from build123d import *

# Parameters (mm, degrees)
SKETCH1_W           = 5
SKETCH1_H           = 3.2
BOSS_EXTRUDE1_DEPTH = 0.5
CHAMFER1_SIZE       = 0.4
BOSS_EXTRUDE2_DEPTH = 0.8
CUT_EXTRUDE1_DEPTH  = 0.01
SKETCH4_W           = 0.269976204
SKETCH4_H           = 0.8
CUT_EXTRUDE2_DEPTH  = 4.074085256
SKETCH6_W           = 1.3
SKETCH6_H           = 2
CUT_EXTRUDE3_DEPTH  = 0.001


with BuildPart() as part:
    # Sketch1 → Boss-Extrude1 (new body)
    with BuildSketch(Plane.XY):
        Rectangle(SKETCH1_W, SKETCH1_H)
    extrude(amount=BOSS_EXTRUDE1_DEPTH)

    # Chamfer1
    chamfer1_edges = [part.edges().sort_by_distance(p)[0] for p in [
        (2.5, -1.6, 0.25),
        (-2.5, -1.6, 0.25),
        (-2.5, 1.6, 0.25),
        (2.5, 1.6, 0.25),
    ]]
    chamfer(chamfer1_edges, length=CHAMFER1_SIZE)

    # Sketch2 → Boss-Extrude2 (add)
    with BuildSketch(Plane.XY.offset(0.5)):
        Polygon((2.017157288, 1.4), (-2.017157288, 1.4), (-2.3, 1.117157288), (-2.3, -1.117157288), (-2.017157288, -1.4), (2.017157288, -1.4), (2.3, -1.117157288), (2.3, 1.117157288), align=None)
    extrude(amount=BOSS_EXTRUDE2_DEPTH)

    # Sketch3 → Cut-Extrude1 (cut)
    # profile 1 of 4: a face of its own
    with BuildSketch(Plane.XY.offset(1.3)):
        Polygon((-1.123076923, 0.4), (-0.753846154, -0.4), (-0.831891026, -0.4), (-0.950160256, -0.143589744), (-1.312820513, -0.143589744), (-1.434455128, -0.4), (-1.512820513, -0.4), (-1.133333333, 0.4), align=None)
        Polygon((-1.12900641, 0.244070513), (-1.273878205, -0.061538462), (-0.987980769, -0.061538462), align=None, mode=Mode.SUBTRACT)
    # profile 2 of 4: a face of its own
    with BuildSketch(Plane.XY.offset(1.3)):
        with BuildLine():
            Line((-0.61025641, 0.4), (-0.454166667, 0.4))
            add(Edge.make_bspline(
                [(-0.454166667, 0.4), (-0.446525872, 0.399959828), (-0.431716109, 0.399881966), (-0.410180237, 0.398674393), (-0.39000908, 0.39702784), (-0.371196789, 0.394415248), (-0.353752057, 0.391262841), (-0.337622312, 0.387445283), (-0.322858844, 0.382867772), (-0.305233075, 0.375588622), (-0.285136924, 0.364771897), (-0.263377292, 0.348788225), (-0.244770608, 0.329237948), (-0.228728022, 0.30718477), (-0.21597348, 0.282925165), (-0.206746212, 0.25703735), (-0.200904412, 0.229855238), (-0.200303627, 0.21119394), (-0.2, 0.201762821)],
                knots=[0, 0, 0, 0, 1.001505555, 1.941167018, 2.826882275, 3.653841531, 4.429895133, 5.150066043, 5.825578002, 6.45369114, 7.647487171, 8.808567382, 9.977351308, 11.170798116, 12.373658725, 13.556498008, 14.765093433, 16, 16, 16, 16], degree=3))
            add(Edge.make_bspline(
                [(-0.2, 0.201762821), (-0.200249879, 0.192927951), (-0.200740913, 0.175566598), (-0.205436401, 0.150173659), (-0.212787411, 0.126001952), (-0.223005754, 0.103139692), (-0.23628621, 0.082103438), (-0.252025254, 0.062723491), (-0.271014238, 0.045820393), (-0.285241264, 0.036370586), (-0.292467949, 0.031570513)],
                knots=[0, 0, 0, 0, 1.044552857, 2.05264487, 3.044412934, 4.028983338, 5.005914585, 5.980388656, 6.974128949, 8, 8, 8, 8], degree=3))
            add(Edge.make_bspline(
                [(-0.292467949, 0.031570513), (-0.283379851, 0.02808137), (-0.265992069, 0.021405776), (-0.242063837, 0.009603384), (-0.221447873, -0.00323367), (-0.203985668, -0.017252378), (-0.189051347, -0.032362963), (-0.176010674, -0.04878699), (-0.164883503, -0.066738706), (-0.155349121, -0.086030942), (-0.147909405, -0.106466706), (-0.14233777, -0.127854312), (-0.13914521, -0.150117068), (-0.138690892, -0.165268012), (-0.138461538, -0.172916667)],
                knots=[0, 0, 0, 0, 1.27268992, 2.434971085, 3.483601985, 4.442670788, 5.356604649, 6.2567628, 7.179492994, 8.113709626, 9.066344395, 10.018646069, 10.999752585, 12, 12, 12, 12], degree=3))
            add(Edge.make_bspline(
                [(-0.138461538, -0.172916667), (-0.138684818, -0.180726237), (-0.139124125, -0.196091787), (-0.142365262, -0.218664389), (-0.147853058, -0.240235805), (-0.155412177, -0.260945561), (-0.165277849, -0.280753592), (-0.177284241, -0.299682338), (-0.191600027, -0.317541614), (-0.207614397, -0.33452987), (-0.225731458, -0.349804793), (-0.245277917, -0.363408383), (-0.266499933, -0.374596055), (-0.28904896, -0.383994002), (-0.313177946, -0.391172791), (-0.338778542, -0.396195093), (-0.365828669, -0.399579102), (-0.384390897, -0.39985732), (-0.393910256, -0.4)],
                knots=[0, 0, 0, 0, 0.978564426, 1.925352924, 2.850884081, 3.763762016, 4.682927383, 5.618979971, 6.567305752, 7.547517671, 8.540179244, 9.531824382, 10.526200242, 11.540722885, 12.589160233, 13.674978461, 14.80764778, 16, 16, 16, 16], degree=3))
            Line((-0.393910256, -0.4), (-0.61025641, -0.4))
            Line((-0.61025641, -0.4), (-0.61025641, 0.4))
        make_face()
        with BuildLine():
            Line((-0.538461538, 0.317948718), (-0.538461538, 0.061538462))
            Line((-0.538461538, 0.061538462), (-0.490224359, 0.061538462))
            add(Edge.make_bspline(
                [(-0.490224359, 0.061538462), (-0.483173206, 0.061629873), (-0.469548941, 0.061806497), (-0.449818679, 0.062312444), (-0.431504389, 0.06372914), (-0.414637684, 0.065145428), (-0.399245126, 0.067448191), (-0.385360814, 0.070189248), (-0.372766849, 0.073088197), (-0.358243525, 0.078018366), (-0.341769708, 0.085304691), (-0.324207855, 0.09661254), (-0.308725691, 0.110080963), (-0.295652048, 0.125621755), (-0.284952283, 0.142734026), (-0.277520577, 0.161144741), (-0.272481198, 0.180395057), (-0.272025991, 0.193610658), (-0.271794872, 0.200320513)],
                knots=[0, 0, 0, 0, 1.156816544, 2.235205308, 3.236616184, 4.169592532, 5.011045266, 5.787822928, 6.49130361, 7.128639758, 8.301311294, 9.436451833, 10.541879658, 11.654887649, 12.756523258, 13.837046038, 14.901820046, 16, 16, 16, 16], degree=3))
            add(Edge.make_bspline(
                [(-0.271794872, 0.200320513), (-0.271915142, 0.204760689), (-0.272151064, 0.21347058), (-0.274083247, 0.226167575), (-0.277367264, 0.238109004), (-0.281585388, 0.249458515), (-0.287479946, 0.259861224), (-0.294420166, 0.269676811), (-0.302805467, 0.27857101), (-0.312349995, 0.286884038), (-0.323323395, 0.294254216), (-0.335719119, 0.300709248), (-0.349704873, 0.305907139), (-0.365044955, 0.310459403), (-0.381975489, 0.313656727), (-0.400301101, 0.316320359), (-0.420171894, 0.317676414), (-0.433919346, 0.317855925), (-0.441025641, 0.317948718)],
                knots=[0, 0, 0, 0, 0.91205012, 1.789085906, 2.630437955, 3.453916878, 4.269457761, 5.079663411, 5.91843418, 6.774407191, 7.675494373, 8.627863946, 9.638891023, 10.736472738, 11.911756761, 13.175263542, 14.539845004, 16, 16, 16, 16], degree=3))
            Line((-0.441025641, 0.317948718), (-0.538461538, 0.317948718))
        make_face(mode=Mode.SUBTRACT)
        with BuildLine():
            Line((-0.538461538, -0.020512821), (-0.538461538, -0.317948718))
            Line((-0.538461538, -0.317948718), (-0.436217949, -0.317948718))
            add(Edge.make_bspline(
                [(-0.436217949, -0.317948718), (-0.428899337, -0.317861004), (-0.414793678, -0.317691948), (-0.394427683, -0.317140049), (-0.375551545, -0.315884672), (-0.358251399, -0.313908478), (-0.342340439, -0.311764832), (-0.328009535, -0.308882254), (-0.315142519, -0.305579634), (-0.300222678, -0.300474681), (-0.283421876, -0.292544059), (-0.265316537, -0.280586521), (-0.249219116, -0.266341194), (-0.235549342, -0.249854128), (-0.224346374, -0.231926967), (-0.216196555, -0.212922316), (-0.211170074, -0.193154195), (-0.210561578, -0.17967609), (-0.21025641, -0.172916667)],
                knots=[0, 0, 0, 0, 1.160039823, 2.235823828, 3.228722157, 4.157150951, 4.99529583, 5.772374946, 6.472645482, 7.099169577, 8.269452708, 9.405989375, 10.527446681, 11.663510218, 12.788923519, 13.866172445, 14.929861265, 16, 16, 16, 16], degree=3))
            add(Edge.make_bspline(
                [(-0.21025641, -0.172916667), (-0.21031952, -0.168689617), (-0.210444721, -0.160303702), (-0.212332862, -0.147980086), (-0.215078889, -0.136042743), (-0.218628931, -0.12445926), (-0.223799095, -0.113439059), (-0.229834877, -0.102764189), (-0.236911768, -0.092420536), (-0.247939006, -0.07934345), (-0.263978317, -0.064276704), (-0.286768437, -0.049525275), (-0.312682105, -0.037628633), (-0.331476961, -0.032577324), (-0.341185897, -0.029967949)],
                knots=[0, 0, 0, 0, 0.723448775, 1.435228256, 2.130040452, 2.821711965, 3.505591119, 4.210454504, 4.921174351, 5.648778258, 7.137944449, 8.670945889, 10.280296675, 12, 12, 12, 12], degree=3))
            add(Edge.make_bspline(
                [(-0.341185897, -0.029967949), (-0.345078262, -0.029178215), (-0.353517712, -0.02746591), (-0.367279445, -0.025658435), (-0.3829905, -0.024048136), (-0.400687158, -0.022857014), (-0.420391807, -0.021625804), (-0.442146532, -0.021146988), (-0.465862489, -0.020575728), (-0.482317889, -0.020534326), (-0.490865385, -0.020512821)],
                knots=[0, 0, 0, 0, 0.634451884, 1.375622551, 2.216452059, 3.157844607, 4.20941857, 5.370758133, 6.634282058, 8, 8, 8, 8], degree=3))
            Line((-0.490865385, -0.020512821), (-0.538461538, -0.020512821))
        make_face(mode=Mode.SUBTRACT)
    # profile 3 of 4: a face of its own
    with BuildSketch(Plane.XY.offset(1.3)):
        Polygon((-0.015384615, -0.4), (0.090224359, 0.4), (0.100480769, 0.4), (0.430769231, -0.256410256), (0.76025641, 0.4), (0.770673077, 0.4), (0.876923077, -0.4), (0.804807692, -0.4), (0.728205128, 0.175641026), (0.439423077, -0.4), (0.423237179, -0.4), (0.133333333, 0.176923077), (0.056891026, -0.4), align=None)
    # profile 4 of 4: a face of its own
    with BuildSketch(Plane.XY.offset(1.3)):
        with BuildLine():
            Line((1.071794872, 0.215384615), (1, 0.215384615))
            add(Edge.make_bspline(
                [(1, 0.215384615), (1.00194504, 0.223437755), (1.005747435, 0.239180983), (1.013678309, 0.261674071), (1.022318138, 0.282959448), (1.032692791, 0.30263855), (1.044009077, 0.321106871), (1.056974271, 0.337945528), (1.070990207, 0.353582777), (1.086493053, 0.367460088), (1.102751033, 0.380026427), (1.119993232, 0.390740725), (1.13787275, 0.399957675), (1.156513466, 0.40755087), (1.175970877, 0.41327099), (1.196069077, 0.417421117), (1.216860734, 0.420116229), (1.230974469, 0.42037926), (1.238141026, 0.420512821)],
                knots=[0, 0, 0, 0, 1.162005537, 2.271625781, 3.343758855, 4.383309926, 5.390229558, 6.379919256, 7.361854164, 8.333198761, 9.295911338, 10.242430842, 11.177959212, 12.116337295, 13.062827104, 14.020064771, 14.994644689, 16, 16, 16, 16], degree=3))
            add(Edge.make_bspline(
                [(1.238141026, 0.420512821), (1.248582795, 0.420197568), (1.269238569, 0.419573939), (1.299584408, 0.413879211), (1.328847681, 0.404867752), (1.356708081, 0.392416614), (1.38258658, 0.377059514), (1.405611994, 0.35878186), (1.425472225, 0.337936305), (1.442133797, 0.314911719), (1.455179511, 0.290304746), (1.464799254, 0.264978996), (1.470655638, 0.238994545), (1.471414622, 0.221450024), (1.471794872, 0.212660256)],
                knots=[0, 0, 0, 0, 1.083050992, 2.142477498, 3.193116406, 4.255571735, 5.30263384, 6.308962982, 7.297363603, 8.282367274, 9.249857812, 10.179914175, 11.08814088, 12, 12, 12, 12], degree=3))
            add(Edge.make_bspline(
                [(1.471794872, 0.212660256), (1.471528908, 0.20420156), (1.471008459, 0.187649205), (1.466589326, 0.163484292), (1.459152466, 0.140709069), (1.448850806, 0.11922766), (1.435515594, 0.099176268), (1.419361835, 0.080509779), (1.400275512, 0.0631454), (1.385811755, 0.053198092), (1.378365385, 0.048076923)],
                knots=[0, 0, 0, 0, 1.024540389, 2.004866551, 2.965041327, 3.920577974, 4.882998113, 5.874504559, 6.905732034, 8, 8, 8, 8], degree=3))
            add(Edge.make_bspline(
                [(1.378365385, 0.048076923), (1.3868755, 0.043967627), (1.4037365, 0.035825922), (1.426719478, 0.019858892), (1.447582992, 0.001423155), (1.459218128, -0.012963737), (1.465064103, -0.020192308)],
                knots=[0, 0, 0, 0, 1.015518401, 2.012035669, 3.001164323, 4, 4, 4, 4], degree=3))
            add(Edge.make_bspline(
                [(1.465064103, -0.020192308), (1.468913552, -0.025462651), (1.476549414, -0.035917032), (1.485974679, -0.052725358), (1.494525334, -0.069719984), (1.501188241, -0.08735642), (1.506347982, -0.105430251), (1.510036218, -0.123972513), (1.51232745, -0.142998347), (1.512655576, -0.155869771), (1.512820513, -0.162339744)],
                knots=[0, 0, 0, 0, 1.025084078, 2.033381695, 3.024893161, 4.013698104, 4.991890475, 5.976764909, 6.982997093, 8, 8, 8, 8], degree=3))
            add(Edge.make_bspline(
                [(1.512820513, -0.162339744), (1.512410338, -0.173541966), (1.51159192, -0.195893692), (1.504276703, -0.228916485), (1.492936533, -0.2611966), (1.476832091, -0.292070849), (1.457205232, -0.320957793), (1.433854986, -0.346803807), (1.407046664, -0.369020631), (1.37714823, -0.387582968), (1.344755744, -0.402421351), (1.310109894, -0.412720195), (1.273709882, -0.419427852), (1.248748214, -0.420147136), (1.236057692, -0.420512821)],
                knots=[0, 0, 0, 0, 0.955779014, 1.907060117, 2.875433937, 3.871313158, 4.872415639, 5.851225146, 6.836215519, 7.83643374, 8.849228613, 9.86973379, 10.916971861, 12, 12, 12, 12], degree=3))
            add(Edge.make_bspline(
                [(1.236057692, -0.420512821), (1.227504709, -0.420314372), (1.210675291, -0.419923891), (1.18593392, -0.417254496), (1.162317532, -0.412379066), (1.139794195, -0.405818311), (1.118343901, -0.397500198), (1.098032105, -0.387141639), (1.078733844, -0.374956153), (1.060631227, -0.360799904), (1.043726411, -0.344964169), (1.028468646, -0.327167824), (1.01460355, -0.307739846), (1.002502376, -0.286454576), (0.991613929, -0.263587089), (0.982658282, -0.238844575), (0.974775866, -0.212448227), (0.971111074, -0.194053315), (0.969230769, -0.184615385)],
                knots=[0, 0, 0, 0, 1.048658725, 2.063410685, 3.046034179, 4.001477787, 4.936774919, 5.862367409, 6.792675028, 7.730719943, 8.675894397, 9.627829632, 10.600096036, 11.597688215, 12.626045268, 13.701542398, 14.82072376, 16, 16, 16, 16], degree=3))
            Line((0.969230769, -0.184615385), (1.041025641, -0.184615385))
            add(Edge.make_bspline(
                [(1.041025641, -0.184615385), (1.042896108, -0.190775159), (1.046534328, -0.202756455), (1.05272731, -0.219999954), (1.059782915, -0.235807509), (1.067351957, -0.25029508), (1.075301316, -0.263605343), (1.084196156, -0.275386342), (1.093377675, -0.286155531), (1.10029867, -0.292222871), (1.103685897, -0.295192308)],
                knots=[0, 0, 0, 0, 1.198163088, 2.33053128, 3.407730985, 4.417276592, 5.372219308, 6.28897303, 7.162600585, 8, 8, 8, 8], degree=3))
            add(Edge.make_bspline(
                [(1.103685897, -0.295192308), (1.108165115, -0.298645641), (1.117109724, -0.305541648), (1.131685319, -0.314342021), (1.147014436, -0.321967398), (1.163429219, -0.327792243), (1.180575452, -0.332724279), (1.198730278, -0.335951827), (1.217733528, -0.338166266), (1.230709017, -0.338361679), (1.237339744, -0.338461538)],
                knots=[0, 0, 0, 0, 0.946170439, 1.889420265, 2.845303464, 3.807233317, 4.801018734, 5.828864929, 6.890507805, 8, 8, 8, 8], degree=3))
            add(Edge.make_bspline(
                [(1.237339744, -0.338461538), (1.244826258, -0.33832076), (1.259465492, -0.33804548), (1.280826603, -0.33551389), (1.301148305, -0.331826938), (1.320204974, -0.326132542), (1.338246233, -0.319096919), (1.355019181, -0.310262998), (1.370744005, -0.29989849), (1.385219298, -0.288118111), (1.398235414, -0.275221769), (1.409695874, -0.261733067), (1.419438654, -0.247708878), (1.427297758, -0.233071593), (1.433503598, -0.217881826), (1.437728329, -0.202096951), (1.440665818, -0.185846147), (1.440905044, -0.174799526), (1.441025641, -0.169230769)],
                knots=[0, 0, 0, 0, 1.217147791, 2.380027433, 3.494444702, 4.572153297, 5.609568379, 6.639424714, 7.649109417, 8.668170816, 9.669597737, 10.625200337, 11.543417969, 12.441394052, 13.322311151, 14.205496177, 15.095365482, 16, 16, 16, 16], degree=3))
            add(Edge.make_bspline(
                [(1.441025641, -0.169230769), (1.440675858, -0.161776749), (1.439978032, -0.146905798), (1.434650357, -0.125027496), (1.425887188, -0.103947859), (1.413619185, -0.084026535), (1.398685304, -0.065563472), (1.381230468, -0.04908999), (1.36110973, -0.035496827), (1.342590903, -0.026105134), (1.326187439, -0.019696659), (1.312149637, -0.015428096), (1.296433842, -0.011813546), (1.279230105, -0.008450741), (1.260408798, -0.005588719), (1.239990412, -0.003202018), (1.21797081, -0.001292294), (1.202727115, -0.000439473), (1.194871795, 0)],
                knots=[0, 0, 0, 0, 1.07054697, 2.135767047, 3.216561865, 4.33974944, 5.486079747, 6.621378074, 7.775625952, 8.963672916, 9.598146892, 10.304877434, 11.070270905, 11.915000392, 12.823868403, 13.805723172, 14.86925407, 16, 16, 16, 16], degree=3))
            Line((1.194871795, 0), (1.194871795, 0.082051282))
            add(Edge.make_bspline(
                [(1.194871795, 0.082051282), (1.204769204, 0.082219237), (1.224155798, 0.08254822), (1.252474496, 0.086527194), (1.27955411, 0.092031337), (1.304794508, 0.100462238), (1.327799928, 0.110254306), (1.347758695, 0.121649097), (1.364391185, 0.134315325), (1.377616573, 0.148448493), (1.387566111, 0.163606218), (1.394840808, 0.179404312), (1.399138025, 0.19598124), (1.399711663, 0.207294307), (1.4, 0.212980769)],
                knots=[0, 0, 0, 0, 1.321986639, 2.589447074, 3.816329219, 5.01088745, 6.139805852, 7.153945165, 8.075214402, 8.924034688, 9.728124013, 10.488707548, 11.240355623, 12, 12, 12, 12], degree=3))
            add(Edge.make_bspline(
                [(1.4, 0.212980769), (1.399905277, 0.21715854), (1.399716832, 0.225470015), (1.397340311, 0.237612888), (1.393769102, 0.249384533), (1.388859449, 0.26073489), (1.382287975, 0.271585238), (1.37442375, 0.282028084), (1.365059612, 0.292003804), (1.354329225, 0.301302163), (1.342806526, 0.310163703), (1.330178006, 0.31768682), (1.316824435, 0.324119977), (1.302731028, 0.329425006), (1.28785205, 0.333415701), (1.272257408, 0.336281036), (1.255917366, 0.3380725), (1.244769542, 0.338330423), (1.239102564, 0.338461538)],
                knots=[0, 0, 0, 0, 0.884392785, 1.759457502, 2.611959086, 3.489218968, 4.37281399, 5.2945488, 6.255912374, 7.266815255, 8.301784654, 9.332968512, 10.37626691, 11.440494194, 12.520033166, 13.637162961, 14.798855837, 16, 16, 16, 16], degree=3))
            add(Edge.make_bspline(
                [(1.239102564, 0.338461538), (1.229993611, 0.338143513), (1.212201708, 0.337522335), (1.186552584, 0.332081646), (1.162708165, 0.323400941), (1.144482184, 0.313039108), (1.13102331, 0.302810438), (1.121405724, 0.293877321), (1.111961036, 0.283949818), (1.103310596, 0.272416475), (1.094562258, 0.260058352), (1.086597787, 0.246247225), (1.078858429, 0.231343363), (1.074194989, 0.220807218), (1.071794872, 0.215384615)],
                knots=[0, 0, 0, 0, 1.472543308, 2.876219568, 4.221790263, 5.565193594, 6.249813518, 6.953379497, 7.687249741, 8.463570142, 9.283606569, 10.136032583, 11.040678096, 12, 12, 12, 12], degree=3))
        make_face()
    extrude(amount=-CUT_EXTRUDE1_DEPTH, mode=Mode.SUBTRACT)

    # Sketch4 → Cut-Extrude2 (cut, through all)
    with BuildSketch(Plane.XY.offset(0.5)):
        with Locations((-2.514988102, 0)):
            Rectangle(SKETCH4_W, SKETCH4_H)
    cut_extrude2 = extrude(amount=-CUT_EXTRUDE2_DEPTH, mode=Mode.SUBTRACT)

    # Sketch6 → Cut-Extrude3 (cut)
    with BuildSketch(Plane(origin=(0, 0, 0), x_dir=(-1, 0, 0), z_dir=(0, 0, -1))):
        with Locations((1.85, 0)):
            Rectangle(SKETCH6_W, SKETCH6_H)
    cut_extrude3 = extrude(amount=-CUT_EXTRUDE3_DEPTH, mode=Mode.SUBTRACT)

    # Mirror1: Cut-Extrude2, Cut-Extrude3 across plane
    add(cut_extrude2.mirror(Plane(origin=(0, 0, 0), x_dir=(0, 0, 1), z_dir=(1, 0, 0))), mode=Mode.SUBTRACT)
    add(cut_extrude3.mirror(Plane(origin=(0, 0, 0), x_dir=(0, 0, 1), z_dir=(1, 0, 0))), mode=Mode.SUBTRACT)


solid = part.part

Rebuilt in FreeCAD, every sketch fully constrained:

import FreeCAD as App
import Part
import Sketcher

V = App.Vector
Q = App.Units.Quantity


def edges_at(feature, points):
    """Names of the edges that pass closest to the given points."""
    edges = feature.Shape.Edges
    near = lambda p: min(range(len(edges)), key=lambda i: edges[i].distToShape(Part.Vertex(*p))[0])
    return sorted({f"Edge{near(p) + 1}" for p in points})

doc = App.newDocument("Part")
body = doc.addObject("PartDesign::Body", "Body")

# Sketch on XY plane
sketch1 = body.newObject("Sketcher::SketchObject", "Sketch")
sketch1.AttachmentSupport = (doc.getObject("XY_Plane"), [""])
sketch1.MapMode = "FlatFace"
sketch1.addGeometry([
    Part.LineSegment(V(-2.5, 1.6, 0), V(-2.5, -1.6, 0)),
    Part.LineSegment(V(-2.5, -1.6, 0), V(2.5, -1.6, 0)),
    Part.LineSegment(V(2.5, -1.6, 0), V(2.5, 1.6, 0)),
    Part.LineSegment(V(2.5, 1.6, 0), V(-2.5, 1.6, 0)),
], False)
sketch1.addConstraint([
    Sketcher.Constraint("Coincident", 0, 2, 1, 1),
    Sketcher.Constraint("Coincident", 1, 2, 2, 1),
    Sketcher.Constraint("Coincident", 2, 2, 3, 1),
    Sketcher.Constraint("Coincident", 3, 2, 0, 1),
    Sketcher.Constraint("Vertical", 0),
    Sketcher.Constraint("Horizontal", 1),
    Sketcher.Constraint("Vertical", 2),
    Sketcher.Constraint("Horizontal", 3),
    Sketcher.Constraint("Symmetric", 0, 2, 2, 2, -1, 1),
    Sketcher.Constraint("DistanceX", 1, 1, 1, 2, Q("5 mm")),
    Sketcher.Constraint("DistanceY", 0, 2, 0, 1, Q("3.2 mm")),
])
pad1 = body.newObject("PartDesign::Pad", "Pad")
pad1.Profile = sketch1
pad1.Length = 0.5
doc.recompute()

chamfer = body.newObject("PartDesign::Chamfer", "Chamfer")
chamfer.Base = (pad1, edges_at(pad1, [
    (2.5, -1.6, 0.25),
    (-2.5, -1.6, 0.25),
    (-2.5, 1.6, 0.25),
    (2.5, 1.6, 0.25),
]))
chamfer.Size = 0.4

# Sketch on XY plane
sketch2 = body.newObject("Sketcher::SketchObject", "Sketch001")
sketch2.AttachmentSupport = (doc.getObject("XY_Plane"), [""])
sketch2.MapMode = "FlatFace"
sketch2.AttachmentOffset = App.Placement(V(0, 0, 0.5), App.Rotation())
sketch2.addGeometry([
    Part.LineSegment(V(2.02, 1.4, 0), V(-2.02, 1.4, 0)),  # 0
    Part.LineSegment(V(-2.02, 1.4, 0), V(-2.3, 1.12, 0)),  # 1
    Part.LineSegment(V(-2.3, 1.12, 0), V(-2.3, -1.12, 0)),  # 2
    Part.LineSegment(V(-2.3, -1.12, 0), V(-2.02, -1.4, 0)),  # 3
    Part.LineSegment(V(-2.02, -1.4, 0), V(2.02, -1.4, 0)),  # 4
    Part.LineSegment(V(2.02, -1.4, 0), V(2.3, -1.12, 0)),  # 5
    Part.LineSegment(V(2.3, -1.12, 0), V(2.3, 1.12, 0)),  # 6
    Part.LineSegment(V(2.3, 1.12, 0), V(2.02, 1.4, 0)),  # 7
], False)
sketch2.addConstraint([
    Sketcher.Constraint("Coincident", 0, 2, 1, 1),
    Sketcher.Constraint("Coincident", 1, 2, 2, 1),
    Sketcher.Constraint("Coincident", 2, 2, 3, 1),
    Sketcher.Constraint("Coincident", 3, 2, 4, 1),
    Sketcher.Constraint("Coincident", 4, 2, 5, 1),
    Sketcher.Constraint("Coincident", 5, 2, 6, 1),
    Sketcher.Constraint("Coincident", 6, 2, 7, 1),
    Sketcher.Constraint("Coincident", 7, 2, 0, 1),
    Sketcher.Constraint("Horizontal", 0),
    Sketcher.Constraint("Vertical", 2),
    Sketcher.Constraint("Horizontal", 4),
    Sketcher.Constraint("Vertical", 6),
    Sketcher.Constraint("Symmetric", 0, 2, 4, 2, -1, 1),
    Sketcher.Constraint("Symmetric", 1, 2, 5, 2, -1, 1),
    Sketcher.Constraint("Perpendicular", 1, 3),
    Sketcher.Constraint("Perpendicular", 5, 7),
    Sketcher.Constraint("Horizontal", 2, 2, 5, 2),
    Sketcher.Constraint("Horizontal", 1, 2, 6, 2),
    Sketcher.Constraint("Vertical", 0, 2, 3, 2),
    Sketcher.Constraint("Distance", 1, Q("0.4 mm")),
    Sketcher.Constraint("DistanceY", -1, 1, 0, 2, Q("1.4 mm")),
    Sketcher.Constraint("DistanceX", 1, 2, -1, 1, Q("2.3 mm")),
])
pad2 = body.newObject("PartDesign::Pad", "Pad001")
pad2.Profile = sketch2
pad2.Length = 0.8

# Sketch on XY plane
sketch3 = body.newObject("Sketcher::SketchObject", "Sketch002")
sketch3.AttachmentSupport = (doc.getObject("XY_Plane"), [""])
sketch3.MapMode = "FlatFace"
sketch3.AttachmentOffset = App.Placement(V(0, 0, 1.3), App.Rotation())
sketch3.addGeometry([
    Part.LineSegment(V(-0.753846, -0.4, 0), V(-1.123077, 0.4, 0)),  # 0
    Part.LineSegment(V(-1.123077, 0.4, 0), V(-1.133333, 0.4, 0)),  # 1
    Part.LineSegment(V(-1.133333, 0.4, 0), V(-1.512821, -0.4, 0)),  # 2
    Part.LineSegment(V(-1.512821, -0.4, 0), V(-1.434455, -0.4, 0)),  # 3
    Part.LineSegment(V(-1.434455, -0.4, 0), V(-1.312821, -0.14359, 0)),  # 4
    Part.LineSegment(V(-1.312821, -0.14359, 0), V(-0.95016, -0.14359, 0)),  # 5
    Part.LineSegment(V(-0.95016, -0.14359, 0), V(-0.831891, -0.4, 0)),  # 6
    Part.LineSegment(V(-0.831891, -0.4, 0), V(-0.753846, -0.4, 0)),  # 7
    Part.LineSegment(V(-1.129006, 0.244071, 0), V(-0.987981, -0.061538, 0)),  # 8
    Part.LineSegment(V(-0.987981, -0.061538, 0), V(-1.273878, -0.061538, 0)),  # 9
    Part.LineSegment(V(-1.273878, -0.061538, 0), V(-1.129006, 0.244071, 0)),  # 10
    Part.LineSegment(V(-0.454167, 0.4, 0), V(-0.610256, 0.4, 0)),  # 11
    Part.LineSegment(V(-0.610256, 0.4, 0), V(-0.610256, -0.4, 0)),  # 12
    Part.LineSegment(V(-0.610256, -0.4, 0), V(-0.39391, -0.4, 0)),  # 13
    Part.BSplineCurve([V(-0.138462, -0.172917, 0), V(-0.138685, -0.180726, 0), V(-0.139124, -0.196092, 0), V(-0.142365, -0.218664, 0), V(-0.147853, -0.240236, 0), V(-0.155412, -0.260946, 0), V(-0.165278, -0.280754, 0), V(-0.177284, -0.299682, 0), V(-0.1916, -0.317542, 0), V(-0.207614, -0.33453, 0), V(-0.225731, -0.349805, 0), V(-0.245278, -0.363408, 0), V(-0.2665, -0.374596, 0), V(-0.289049, -0.383994, 0), V(-0.313178, -0.391173, 0), V(-0.338779, -0.396195, 0), V(-0.365829, -0.399579, 0), V(-0.384391, -0.399857, 0), V(-0.39391, -0.4, 0)], [4, 1, 1, 1, 1, 1, 1, 1, 1, 1, 1, 1, 1, 1, 1, 1, 4], [0, 0.978564426, 1.925352924, 2.850884081, 3.763762016, 4.682927383, 5.618979971, 6.567305752, 7.547517671, 8.540179244, 9.531824382, 10.526200242, 11.540722885, 12.589160233, 13.674978461, 14.80764778, 16], False, 3, [1, 1, 1, 1, 1, 1, 1, 1, 1, 1, 1, 1, 1, 1, 1, 1, 1, 1, 1], False),  # 14
    Part.BSplineCurve([V(-0.292468, 0.031571, 0), V(-0.28338, 0.028081, 0), V(-0.265992, 0.021406, 0), V(-0.242064, 0.009603, 0), V(-0.221448, -0.003234, 0), V(-0.203986, -0.017252, 0), V(-0.189051, -0.032363, 0), V(-0.176011, -0.048787, 0), V(-0.164884, -0.066739, 0), V(-0.155349, -0.086031, 0), V(-0.147909, -0.106467, 0), V(-0.142338, -0.127854, 0), V(-0.139145, -0.150117, 0), V(-0.138691, -0.165268, 0), V(-0.138462, -0.172917, 0)], [4, 1, 1, 1, 1, 1, 1, 1, 1, 1, 1, 1, 4], [0, 1.27268992, 2.434971085, 3.483601985, 4.442670788, 5.356604649, 6.2567628, 7.179492994, 8.113709626, 9.066344395, 10.018646069, 10.999752585, 12], False, 3, [1, 1, 1, 1, 1, 1, 1, 1, 1, 1, 1, 1, 1, 1, 1], False),  # 15
    Part.BSplineCurve([V(-0.2, 0.201763, 0), V(-0.20025, 0.192928, 0), V(-0.200741, 0.175567, 0), V(-0.205436, 0.150174, 0), V(-0.212787, 0.126002, 0), V(-0.223006, 0.10314, 0), V(-0.236286, 0.082103, 0), V(-0.252025, 0.062723, 0), V(-0.271014, 0.04582, 0), V(-0.285241, 0.036371, 0), V(-0.292468, 0.031571, 0)], [4, 1, 1, 1, 1, 1, 1, 1, 4], [0, 1.044552857, 2.05264487, 3.044412934, 4.028983338, 5.005914585, 5.980388656, 6.974128949, 8], False, 3, [1, 1, 1, 1, 1, 1, 1, 1, 1, 1, 1], False),  # 16
    Part.BSplineCurve([V(-0.454167, 0.4, 0), V(-0.446526, 0.39996, 0), V(-0.431716, 0.399882, 0), V(-0.41018, 0.398674, 0), V(-0.390009, 0.397028, 0), V(-0.371197, 0.394415, 0), V(-0.353752, 0.391263, 0), V(-0.337622, 0.387445, 0), V(-0.322859, 0.382868, 0), V(-0.305233, 0.375589, 0), V(-0.285137, 0.364772, 0), V(-0.263377, 0.348788, 0), V(-0.244771, 0.329238, 0), V(-0.228728, 0.307185, 0), V(-0.215973, 0.282925, 0), V(-0.206746, 0.257037, 0), V(-0.200904, 0.229855, 0), V(-0.200304, 0.211194, 0), V(-0.2, 0.201763, 0)], [4, 1, 1, 1, 1, 1, 1, 1, 1, 1, 1, 1, 1, 1, 1, 1, 4], [0, 1.001505555, 1.941167018, 2.826882275, 3.653841531, 4.429895133, 5.150066043, 5.825578002, 6.45369114, 7.647487171, 8.808567382, 9.977351308, 11.170798116, 12.373658725, 13.556498008, 14.765093433, 16], False, 3, [1, 1, 1, 1, 1, 1, 1, 1, 1, 1, 1, 1, 1, 1, 1, 1, 1, 1, 1], False),  # 17
    Part.LineSegment(V(-0.538462, -0.020513, 0), V(-0.490865, -0.020513, 0)),  # 18
    Part.BSplineCurve([V(-0.341186, -0.029968, 0), V(-0.345078, -0.029178, 0), V(-0.353518, -0.027466, 0), V(-0.367279, -0.025658, 0), V(-0.382991, -0.024048, 0), V(-0.400687, -0.022857, 0), V(-0.420392, -0.021626, 0), V(-0.442147, -0.021147, 0), V(-0.465862, -0.020576, 0), V(-0.482318, -0.020534, 0), V(-0.490865, -0.020513, 0)], [4, 1, 1, 1, 1, 1, 1, 1, 4], [0, 0.634451884, 1.375622551, 2.216452059, 3.157844607, 4.20941857, 5.370758133, 6.634282058, 8], False, 3, [1, 1, 1, 1, 1, 1, 1, 1, 1, 1, 1], False),  # 19
    Part.BSplineCurve([V(-0.210256, -0.172917, 0), V(-0.21032, -0.16869, 0), V(-0.210445, -0.160304, 0), V(-0.212333, -0.14798, 0), V(-0.215079, -0.136043, 0), V(-0.218629, -0.124459, 0), V(-0.223799, -0.113439, 0), V(-0.229835, -0.102764, 0), V(-0.236912, -0.092421, 0), V(-0.247939, -0.079343, 0), V(-0.263978, -0.064277, 0), V(-0.286768, -0.049525, 0), V(-0.312682, -0.037629, 0), V(-0.331477, -0.032577, 0), V(-0.341186, -0.029968, 0)], [4, 1, 1, 1, 1, 1, 1, 1, 1, 1, 1, 1, 4], [0, 0.723448775, 1.435228256, 2.130040452, 2.821711965, 3.505591119, 4.210454504, 4.921174351, 5.648778258, 7.137944449, 8.670945889, 10.280296675, 12], False, 3, [1, 1, 1, 1, 1, 1, 1, 1, 1, 1, 1, 1, 1, 1, 1], False),  # 20
    Part.BSplineCurve([V(-0.436218, -0.317949, 0), V(-0.428899, -0.317861, 0), V(-0.414794, -0.317692, 0), V(-0.394428, -0.31714, 0), V(-0.375552, -0.315885, 0), V(-0.358251, -0.313908, 0), V(-0.34234, -0.311765, 0), V(-0.32801, -0.308882, 0), V(-0.315143, -0.30558, 0), V(-0.300223, -0.300475, 0), V(-0.283422, -0.292544, 0), V(-0.265317, -0.280587, 0), V(-0.249219, -0.266341, 0), V(-0.235549, -0.249854, 0), V(-0.224346, -0.231927, 0), V(-0.216197, -0.212922, 0), V(-0.21117, -0.193154, 0), V(-0.210562, -0.179676, 0), V(-0.210256, -0.172917, 0)], [4, 1, 1, 1, 1, 1, 1, 1, 1, 1, 1, 1, 1, 1, 1, 1, 4], [0, 1.160039823, 2.235823828, 3.228722157, 4.157150951, 4.99529583, 5.772374946, 6.472645482, 7.099169577, 8.269452708, 9.405989375, 10.527446681, 11.663510218, 12.788923519, 13.866172445, 14.929861265, 16], False, 3, [1, 1, 1, 1, 1, 1, 1, 1, 1, 1, 1, 1, 1, 1, 1, 1, 1, 1, 1], False),  # 21
    Part.LineSegment(V(-0.436218, -0.317949, 0), V(-0.538462, -0.317949, 0)),  # 22
    Part.LineSegment(V(-0.538462, -0.317949, 0), V(-0.538462, -0.020513, 0)),  # 23
    Part.LineSegment(V(-0.538462, 0.317949, 0), V(-0.441026, 0.317949, 0)),  # 24
    Part.BSplineCurve([V(-0.271795, 0.200321, 0), V(-0.271915, 0.204761, 0), V(-0.272151, 0.213471, 0), V(-0.274083, 0.226168, 0), V(-0.277367, 0.238109, 0), V(-0.281585, 0.249459, 0), V(-0.28748, 0.259861, 0), V(-0.29442, 0.269677, 0), V(-0.302805, 0.278571, 0), V(-0.31235, 0.286884, 0), V(-0.323323, 0.294254, 0), V(-0.335719, 0.300709, 0), V(-0.349705, 0.305907, 0), V(-0.365045, 0.310459, 0), V(-0.381975, 0.313657, 0), V(-0.400301, 0.31632, 0), V(-0.420172, 0.317676, 0), V(-0.433919, 0.317856, 0), V(-0.441026, 0.317949, 0)], [4, 1, 1, 1, 1, 1, 1, 1, 1, 1, 1, 1, 1, 1, 1, 1, 4], [0, 0.91205012, 1.789085906, 2.630437955, 3.453916878, 4.269457761, 5.079663411, 5.91843418, 6.774407191, 7.675494373, 8.627863946, 9.638891023, 10.736472738, 11.911756761, 13.175263542, 14.539845004, 16], False, 3, [1, 1, 1, 1, 1, 1, 1, 1, 1, 1, 1, 1, 1, 1, 1, 1, 1, 1, 1], False),  # 25
    Part.BSplineCurve([V(-0.490224, 0.061538, 0), V(-0.483173, 0.06163, 0), V(-0.469549, 0.061806, 0), V(-0.449819, 0.062312, 0), V(-0.431504, 0.063729, 0), V(-0.414638, 0.065145, 0), V(-0.399245, 0.067448, 0), V(-0.385361, 0.070189, 0), V(-0.372767, 0.073088, 0), V(-0.358244, 0.078018, 0), V(-0.34177, 0.085305, 0), V(-0.324208, 0.096613, 0), V(-0.308726, 0.110081, 0), V(-0.295652, 0.125622, 0), V(-0.284952, 0.142734, 0), V(-0.277521, 0.161145, 0), V(-0.272481, 0.180395, 0), V(-0.272026, 0.193611, 0), V(-0.271795, 0.200321, 0)], [4, 1, 1, 1, 1, 1, 1, 1, 1, 1, 1, 1, 1, 1, 1, 1, 4], [0, 1.156816544, 2.235205308, 3.236616184, 4.169592532, 5.011045266, 5.787822928, 6.49130361, 7.128639758, 8.301311294, 9.436451833, 10.541879658, 11.654887649, 12.756523258, 13.837046038, 14.901820046, 16], False, 3, [1, 1, 1, 1, 1, 1, 1, 1, 1, 1, 1, 1, 1, 1, 1, 1, 1, 1, 1], False),  # 26
    Part.LineSegment(V(-0.490224, 0.061538, 0), V(-0.538462, 0.061538, 0)),  # 27
    Part.LineSegment(V(-0.538462, 0.061538, 0), V(-0.538462, 0.317949, 0)),  # 28
    Part.LineSegment(V(0.090224, 0.4, 0), V(-0.015385, -0.4, 0)),  # 29
    Part.LineSegment(V(-0.015385, -0.4, 0), V(0.056891, -0.4, 0)),  # 30
    Part.LineSegment(V(0.056891, -0.4, 0), V(0.133333, 0.176923, 0)),  # 31
    Part.LineSegment(V(0.133333, 0.176923, 0), V(0.423237, -0.4, 0)),  # 32
    Part.LineSegment(V(0.423237, -0.4, 0), V(0.439423, -0.4, 0)),  # 33
    Part.LineSegment(V(0.439423, -0.4, 0), V(0.728205, 0.175641, 0)),  # 34
    Part.LineSegment(V(0.728205, 0.175641, 0), V(0.804808, -0.4, 0)),  # 35
    Part.LineSegment(V(0.804808, -0.4, 0), V(0.876923, -0.4, 0)),  # 36
    Part.LineSegment(V(0.876923, -0.4, 0), V(0.770673, 0.4, 0)),  # 37
    Part.LineSegment(V(0.770673, 0.4, 0), V(0.760256, 0.4, 0)),  # 38
    Part.LineSegment(V(0.760256, 0.4, 0), V(0.430769, -0.25641, 0)),  # 39
    Part.LineSegment(V(0.430769, -0.25641, 0), V(0.100481, 0.4, 0)),  # 40
    Part.LineSegment(V(0.100481, 0.4, 0), V(0.090224, 0.4, 0)),  # 41
    Part.LineSegment(V(1, 0.215385, 0), V(1.071795, 0.215385, 0)),  # 42
    Part.BSplineCurve([V(1.239103, 0.338462, 0), V(1.229994, 0.338144, 0), V(1.212202, 0.337522, 0), V(1.186553, 0.332082, 0), V(1.162708, 0.323401, 0), V(1.144482, 0.313039, 0), V(1.131023, 0.30281, 0), V(1.121406, 0.293877, 0), V(1.111961, 0.28395, 0), V(1.103311, 0.272416, 0), V(1.094562, 0.260058, 0), V(1.086598, 0.246247, 0), V(1.078858, 0.231343, 0), V(1.074195, 0.220807, 0), V(1.071795, 0.215385, 0)], [4, 1, 1, 1, 1, 1, 1, 1, 1, 1, 1, 1, 4], [0, 1.472543308, 2.876219568, 4.221790263, 5.565193594, 6.249813518, 6.953379497, 7.687249741, 8.463570142, 9.283606569, 10.136032583, 11.040678096, 12], False, 3, [1, 1, 1, 1, 1, 1, 1, 1, 1, 1, 1, 1, 1, 1, 1], False),  # 43
    Part.BSplineCurve([V(1.4, 0.212981, 0), V(1.399905, 0.217159, 0), V(1.399717, 0.22547, 0), V(1.39734, 0.237613, 0), V(1.393769, 0.249385, 0), V(1.388859, 0.260735, 0), V(1.382288, 0.271585, 0), V(1.374424, 0.282028, 0), V(1.36506, 0.292004, 0), V(1.354329, 0.301302, 0), V(1.342807, 0.310164, 0), V(1.330178, 0.317687, 0), V(1.316824, 0.32412, 0), V(1.302731, 0.329425, 0), V(1.287852, 0.333416, 0), V(1.272257, 0.336281, 0), V(1.255917, 0.338072, 0), V(1.24477, 0.33833, 0), V(1.239103, 0.338462, 0)], [4, 1, 1, 1, 1, 1, 1, 1, 1, 1, 1, 1, 1, 1, 1, 1, 4], [0, 0.884392785, 1.759457502, 2.611959086, 3.489218968, 4.37281399, 5.2945488, 6.255912374, 7.266815255, 8.301784654, 9.332968512, 10.37626691, 11.440494194, 12.520033166, 13.637162961, 14.798855837, 16], False, 3, [1, 1, 1, 1, 1, 1, 1, 1, 1, 1, 1, 1, 1, 1, 1, 1, 1, 1, 1], False),  # 44
    Part.BSplineCurve([V(1.194872, 0.082051, 0), V(1.204769, 0.082219, 0), V(1.224156, 0.082548, 0), V(1.252474, 0.086527, 0), V(1.279554, 0.092031, 0), V(1.304795, 0.100462, 0), V(1.3278, 0.110254, 0), V(1.347759, 0.121649, 0), V(1.364391, 0.134315, 0), V(1.377617, 0.148448, 0), V(1.387566, 0.163606, 0), V(1.394841, 0.179404, 0), V(1.399138, 0.195981, 0), V(1.399712, 0.207294, 0), V(1.4, 0.212981, 0)], [4, 1, 1, 1, 1, 1, 1, 1, 1, 1, 1, 1, 4], [0, 1.321986639, 2.589447074, 3.816329219, 5.01088745, 6.139805852, 7.153945165, 8.075214402, 8.924034688, 9.728124013, 10.488707548, 11.240355623, 12], False, 3, [1, 1, 1, 1, 1, 1, 1, 1, 1, 1, 1, 1, 1, 1, 1], False),  # 45
    Part.LineSegment(V(1.194872, 0.082051, 0), V(1.194872, 0, 0)),  # 46
    Part.BSplineCurve([V(1.441026, -0.169231, 0), V(1.440676, -0.161777, 0), V(1.439978, -0.146906, 0), V(1.43465, -0.125027, 0), V(1.425887, -0.103948, 0), V(1.413619, -0.084027, 0), V(1.398685, -0.065563, 0), V(1.38123, -0.04909, 0), V(1.36111, -0.035497, 0), V(1.342591, -0.026105, 0), V(1.326187, -0.019697, 0), V(1.31215, -0.015428, 0), V(1.296434, -0.011814, 0), V(1.27923, -0.008451, 0), V(1.260409, -0.005589, 0), V(1.23999, -0.003202, 0), V(1.217971, -0.001292, 0), V(1.202727, -0.000439, 0), V(1.194872, 0, 0)], [4, 1, 1, 1, 1, 1, 1, 1, 1, 1, 1, 1, 1, 1, 1, 1, 4], [0, 1.07054697, 2.135767047, 3.216561865, 4.33974944, 5.486079747, 6.621378074, 7.775625952, 8.963672916, 9.598146892, 10.304877434, 11.070270905, 11.915000392, 12.823868403, 13.805723172, 14.86925407, 16], False, 3, [1, 1, 1, 1, 1, 1, 1, 1, 1, 1, 1, 1, 1, 1, 1, 1, 1, 1, 1], False),  # 47
    Part.BSplineCurve([V(1.23734, -0.338462, 0), V(1.244826, -0.338321, 0), V(1.259465, -0.338045, 0), V(1.280827, -0.335514, 0), V(1.301148, -0.331827, 0), V(1.320205, -0.326133, 0), V(1.338246, -0.319097, 0), V(1.355019, -0.310263, 0), V(1.370744, -0.299898, 0), V(1.385219, -0.288118, 0), V(1.398235, -0.275222, 0), V(1.409696, -0.261733, 0), V(1.419439, -0.247709, 0), V(1.427298, -0.233072, 0), V(1.433504, -0.217882, 0), V(1.437728, -0.202097, 0), V(1.440666, -0.185846, 0), V(1.440905, -0.1748, 0), V(1.441026, -0.169231, 0)], [4, 1, 1, 1, 1, 1, 1, 1, 1, 1, 1, 1, 1, 1, 1, 1, 4], [0, 1.217147791, 2.380027433, 3.494444702, 4.572153297, 5.609568379, 6.639424714, 7.649109417, 8.668170816, 9.669597737, 10.625200337, 11.543417969, 12.441394052, 13.322311151, 14.205496177, 15.095365482, 16], False, 3, [1, 1, 1, 1, 1, 1, 1, 1, 1, 1, 1, 1, 1, 1, 1, 1, 1, 1, 1], False),  # 48
    Part.BSplineCurve([V(1.103686, -0.295192, 0), V(1.108165, -0.298646, 0), V(1.11711, -0.305542, 0), V(1.131685, -0.314342, 0), V(1.147014, -0.321967, 0), V(1.163429, -0.327792, 0), V(1.180575, -0.332724, 0), V(1.19873, -0.335952, 0), V(1.217734, -0.338166, 0), V(1.230709, -0.338362, 0), V(1.23734, -0.338462, 0)], [4, 1, 1, 1, 1, 1, 1, 1, 4], [0, 0.946170439, 1.889420265, 2.845303464, 3.807233317, 4.801018734, 5.828864929, 6.890507805, 8], False, 3, [1, 1, 1, 1, 1, 1, 1, 1, 1, 1, 1], False),  # 49
    Part.BSplineCurve([V(1.041026, -0.184615, 0), V(1.042896, -0.190775, 0), V(1.046534, -0.202756, 0), V(1.052727, -0.22, 0), V(1.059783, -0.235808, 0), V(1.067352, -0.250295, 0), V(1.075301, -0.263605, 0), V(1.084196, -0.275386, 0), V(1.093378, -0.286156, 0), V(1.100299, -0.292223, 0), V(1.103686, -0.295192, 0)], [4, 1, 1, 1, 1, 1, 1, 1, 4], [0, 1.198163088, 2.33053128, 3.407730985, 4.417276592, 5.372219308, 6.28897303, 7.162600585, 8], False, 3, [1, 1, 1, 1, 1, 1, 1, 1, 1, 1, 1], False),  # 50
    Part.LineSegment(V(1.041026, -0.184615, 0), V(0.969231, -0.184615, 0)),  # 51
    Part.BSplineCurve([V(1.236058, -0.420513, 0), V(1.227505, -0.420314, 0), V(1.210675, -0.419924, 0), V(1.185934, -0.417254, 0), V(1.162318, -0.412379, 0), V(1.139794, -0.405818, 0), V(1.118344, -0.3975, 0), V(1.098032, -0.387142, 0), V(1.078734, -0.374956, 0), V(1.060631, -0.3608, 0), V(1.043726, -0.344964, 0), V(1.028469, -0.327168, 0), V(1.014604, -0.30774, 0), V(1.002502, -0.286455, 0), V(0.991614, -0.263587, 0), V(0.982658, -0.238845, 0), V(0.974776, -0.212448, 0), V(0.971111, -0.194053, 0), V(0.969231, -0.184615, 0)], [4, 1, 1, 1, 1, 1, 1, 1, 1, 1, 1, 1, 1, 1, 1, 1, 4], [0, 1.048658725, 2.063410685, 3.046034179, 4.001477787, 4.936774919, 5.862367409, 6.792675028, 7.730719943, 8.675894397, 9.627829632, 10.600096036, 11.597688215, 12.626045268, 13.701542398, 14.82072376, 16], False, 3, [1, 1, 1, 1, 1, 1, 1, 1, 1, 1, 1, 1, 1, 1, 1, 1, 1, 1, 1], False),  # 52
    Part.BSplineCurve([V(1.512821, -0.16234, 0), V(1.51241, -0.173542, 0), V(1.511592, -0.195894, 0), V(1.504277, -0.228916, 0), V(1.492937, -0.261197, 0), V(1.476832, -0.292071, 0), V(1.457205, -0.320958, 0), V(1.433855, -0.346804, 0), V(1.407047, -0.369021, 0), V(1.377148, -0.387583, 0), V(1.344756, -0.402421, 0), V(1.31011, -0.41272, 0), V(1.27371, -0.419428, 0), V(1.248748, -0.420147, 0), V(1.236058, -0.420513, 0)], [4, 1, 1, 1, 1, 1, 1, 1, 1, 1, 1, 1, 4], [0, 0.955779014, 1.907060117, 2.875433937, 3.871313158, 4.872415639, 5.851225146, 6.836215519, 7.83643374, 8.849228613, 9.86973379, 10.916971861, 12], False, 3, [1, 1, 1, 1, 1, 1, 1, 1, 1, 1, 1, 1, 1, 1, 1], False),  # 53
    Part.BSplineCurve([V(1.465064, -0.020192, 0), V(1.468914, -0.025463, 0), V(1.476549, -0.035917, 0), V(1.485975, -0.052725, 0), V(1.494525, -0.06972, 0), V(1.501188, -0.087356, 0), V(1.506348, -0.10543, 0), V(1.510036, -0.123973, 0), V(1.512327, -0.142998, 0), V(1.512656, -0.15587, 0), V(1.512821, -0.16234, 0)], [4, 1, 1, 1, 1, 1, 1, 1, 4], [0, 1.025084078, 2.033381695, 3.024893161, 4.013698104, 4.991890475, 5.976764909, 6.982997093, 8], False, 3, [1, 1, 1, 1, 1, 1, 1, 1, 1, 1, 1], False),  # 54
    Part.BSplineCurve([V(1.378365, 0.048077, 0), V(1.386875, 0.043968, 0), V(1.403736, 0.035826, 0), V(1.426719, 0.019859, 0), V(1.447583, 0.001423, 0), V(1.459218, -0.012964, 0), V(1.465064, -0.020192, 0)], [4, 1, 1, 1, 4], [0, 1.015518401, 2.012035669, 3.001164323, 4], False, 3, [1, 1, 1, 1, 1, 1, 1], False),  # 55
    Part.BSplineCurve([V(1.471795, 0.21266, 0), V(1.471529, 0.204202, 0), V(1.471008, 0.187649, 0), V(1.466589, 0.163484, 0), V(1.459152, 0.140709, 0), V(1.448851, 0.119228, 0), V(1.435516, 0.099176, 0), V(1.419362, 0.08051, 0), V(1.400276, 0.063145, 0), V(1.385812, 0.053198, 0), V(1.378365, 0.048077, 0)], [4, 1, 1, 1, 1, 1, 1, 1, 4], [0, 1.024540389, 2.004866551, 2.965041327, 3.920577974, 4.882998113, 5.874504559, 6.905732034, 8], False, 3, [1, 1, 1, 1, 1, 1, 1, 1, 1, 1, 1], False),  # 56
    Part.BSplineCurve([V(1.238141, 0.420513, 0), V(1.248583, 0.420198, 0), V(1.269239, 0.419574, 0), V(1.299584, 0.413879, 0), V(1.328848, 0.404868, 0), V(1.356708, 0.392417, 0), V(1.382587, 0.37706, 0), V(1.405612, 0.358782, 0), V(1.425472, 0.337936, 0), V(1.442134, 0.314912, 0), V(1.45518, 0.290305, 0), V(1.464799, 0.264979, 0), V(1.470656, 0.238995, 0), V(1.471415, 0.22145, 0), V(1.471795, 0.21266, 0)], [4, 1, 1, 1, 1, 1, 1, 1, 1, 1, 1, 1, 4], [0, 1.083050992, 2.142477498, 3.193116406, 4.255571735, 5.30263384, 6.308962982, 7.297363603, 8.282367274, 9.249857812, 10.179914175, 11.08814088, 12], False, 3, [1, 1, 1, 1, 1, 1, 1, 1, 1, 1, 1, 1, 1, 1, 1], False),  # 57
    Part.BSplineCurve([V(1, 0.215385, 0), V(1.001945, 0.223438, 0), V(1.005747, 0.239181, 0), V(1.013678, 0.261674, 0), V(1.022318, 0.282959, 0), V(1.032693, 0.302639, 0), V(1.044009, 0.321107, 0), V(1.056974, 0.337946, 0), V(1.07099, 0.353583, 0), V(1.086493, 0.36746, 0), V(1.102751, 0.380026, 0), V(1.119993, 0.390741, 0), V(1.137873, 0.399958, 0), V(1.156513, 0.407551, 0), V(1.175971, 0.413271, 0), V(1.196069, 0.417421, 0), V(1.216861, 0.420116, 0), V(1.230974, 0.420379, 0), V(1.238141, 0.420513, 0)], [4, 1, 1, 1, 1, 1, 1, 1, 1, 1, 1, 1, 1, 1, 1, 1, 4], [0, 1.162005537, 2.271625781, 3.343758855, 4.383309926, 5.390229558, 6.379919256, 7.361854164, 8.333198761, 9.295911338, 10.242430842, 11.177959212, 12.116337295, 13.062827104, 14.020064771, 14.994644689, 16], False, 3, [1, 1, 1, 1, 1, 1, 1, 1, 1, 1, 1, 1, 1, 1, 1, 1, 1, 1, 1], False),  # 58
], False)
sketch3.addConstraint([
    Sketcher.Constraint("Block", 14),
    Sketcher.Constraint("Block", 15),
    Sketcher.Constraint("Block", 16),
    Sketcher.Constraint("Block", 17),
    Sketcher.Constraint("Block", 19),
    Sketcher.Constraint("Block", 20),
    Sketcher.Constraint("Block", 21),
    Sketcher.Constraint("Block", 25),
    Sketcher.Constraint("Block", 26),
    Sketcher.Constraint("Block", 43),
    Sketcher.Constraint("Block", 44),
    Sketcher.Constraint("Block", 45),
    Sketcher.Constraint("Block", 47),
    Sketcher.Constraint("Block", 48),
    Sketcher.Constraint("Block", 49),
    Sketcher.Constraint("Block", 50),
    Sketcher.Constraint("Block", 52),
    Sketcher.Constraint("Block", 53),
    Sketcher.Constraint("Block", 54),
    Sketcher.Constraint("Block", 55),
    Sketcher.Constraint("Block", 56),
    Sketcher.Constraint("Block", 57),
    Sketcher.Constraint("Block", 58),
    Sketcher.Constraint("Coincident", 0, 2, 1, 1),
    Sketcher.Constraint("Coincident", 1, 2, 2, 1),
    Sketcher.Constraint("Coincident", 2, 2, 3, 1),
    Sketcher.Constraint("Coincident", 3, 2, 4, 1),
    Sketcher.Constraint("Coincident", 4, 2, 5, 1),
    Sketcher.Constraint("Coincident", 5, 2, 6, 1),
    Sketcher.Constraint("Coincident", 6, 2, 7, 1),
    Sketcher.Constraint("Coincident", 7, 2, 0, 1),
    Sketcher.Constraint("Coincident", 8, 2, 9, 1),
    Sketcher.Constraint("Coincident", 9, 2, 10, 1),
    Sketcher.Constraint("Coincident", 10, 2, 8, 1),
    Sketcher.Constraint("Coincident", 11, 2, 12, 1),
    Sketcher.Constraint("Coincident", 12, 2, 13, 1),
    Sketcher.Constraint("Coincident", 13, 2, 14, 2),
    Sketcher.Constraint("Coincident", 17, 1, 11, 1),
    Sketcher.Constraint("Coincident", 18, 2, 19, 2),
    Sketcher.Constraint("Coincident", 21, 1, 22, 1),
    Sketcher.Constraint("Coincident", 22, 2, 23, 1),
    Sketcher.Constraint("Coincident", 23, 2, 18, 1),
    Sketcher.Constraint("Coincident", 24, 2, 25, 2),
    Sketcher.Constraint("Coincident", 26, 1, 27, 1),
    Sketcher.Constraint("Coincident", 27, 2, 28, 1),
    Sketcher.Constraint("Coincident", 28, 2, 24, 1),
    Sketcher.Constraint("Coincident", 29, 2, 30, 1),
    Sketcher.Constraint("Coincident", 30, 2, 31, 1),
    Sketcher.Constraint("Coincident", 31, 2, 32, 1),
    Sketcher.Constraint("Coincident", 32, 2, 33, 1),
    Sketcher.Constraint("Coincident", 33, 2, 34, 1),
    Sketcher.Constraint("Coincident", 34, 2, 35, 1),
    Sketcher.Constraint("Coincident", 35, 2, 36, 1),
    Sketcher.Constraint("Coincident", 36, 2, 37, 1),
    Sketcher.Constraint("Coincident", 37, 2, 38, 1),
    Sketcher.Constraint("Coincident", 38, 2, 39, 1),
    Sketcher.Constraint("Coincident", 39, 2, 40, 1),
    Sketcher.Constraint("Coincident", 40, 2, 41, 1),
    Sketcher.Constraint("Coincident", 41, 2, 29, 1),
    Sketcher.Constraint("Coincident", 42, 2, 43, 2),
    Sketcher.Constraint("Coincident", 45, 1, 46, 1),
    Sketcher.Constraint("Coincident", 46, 2, 47, 2),
    Sketcher.Constraint("Coincident", 50, 1, 51, 1),
    Sketcher.Constraint("Coincident", 51, 2, 52, 2),
    Sketcher.Constraint("Coincident", 58, 1, 42, 1),
    Sketcher.Constraint("Horizontal", 1),
    Sketcher.Constraint("Horizontal", 3),
    Sketcher.Constraint("Horizontal", 5),
    Sketcher.Constraint("Horizontal", 7),
    Sketcher.Constraint("Horizontal", 9),
    Sketcher.Constraint("Horizontal", 11),
    Sketcher.Constraint("Vertical", 12),
    Sketcher.Constraint("Horizontal", 13),
    Sketcher.Constraint("Horizontal", 18),
    Sketcher.Constraint("Horizontal", 22),
    Sketcher.Constraint("Vertical", 23),
    Sketcher.Constraint("Horizontal", 24),
    Sketcher.Constraint("Horizontal", 27),
    Sketcher.Constraint("Vertical", 28),
    Sketcher.Constraint("Horizontal", 30),
    Sketcher.Constraint("Horizontal", 33),
    Sketcher.Constraint("Horizontal", 36),
    Sketcher.Constraint("Horizontal", 38),
    Sketcher.Constraint("Horizontal", 41),
    Sketcher.Constraint("DistanceY", -1, 1, 0, 2, Q("0.4 mm")),
    Sketcher.Constraint("DistanceY", 2, 2, -1, 1, Q("0.4 mm")),
    Sketcher.Constraint("DistanceY", 6, 2, -1, 1, Q("0.4 mm")),
    Sketcher.Constraint("DistanceY", 29, 2, -1, 1, Q("0.4 mm")),
    Sketcher.Constraint("DistanceY", 32, 2, -1, 1, Q("0.4 mm")),
    Sketcher.Constraint("DistanceY", 35, 2, -1, 1, Q("0.4 mm")),
    Sketcher.Constraint("DistanceY", -1, 1, 37, 2, Q("0.4 mm")),
    Sketcher.Constraint("DistanceY", -1, 1, 40, 2, Q("0.4 mm")),
    Sketcher.Constraint("DistanceX", 2, 2, 4, 2, Q("0.2 mm")),
    Sketcher.Constraint("DistanceX", 5, 1, 5, 2, Q("0.36266 mm")),
    Sketcher.Constraint("DistanceX", 11, 2, 11, 1, Q("0.15609 mm")),
    Sketcher.Constraint("DistanceX", 13, 2, 30, 2, Q("0.450801 mm")),
    Sketcher.Constraint("DistanceX", 18, 2, 31, 2, Q("0.624199 mm")),
    Sketcher.Constraint("DistanceX", 22, 2, 32, 2, Q("0.961699 mm")),
    Sketcher.Constraint("DistanceX", 33, 2, 36, 2, Q("0.4375 mm")),
    Sketcher.Constraint("DistanceX", 37, 2, 46, 2, Q("0.424199 mm")),
    Sketcher.Constraint("Distance", 6, Q("0.282372 mm")),
    Sketcher.Constraint("Distance", 8, Q("0.336578 mm")),
    Sketcher.Constraint("Distance", 10, Q("0.338208 mm")),
    Sketcher.Constraint("Distance", 29, Q("0.806941 mm")),
    Sketcher.Constraint("DistanceX", 1, 2, 1, 1, Q("0.010256 mm")),
    Sketcher.Constraint("DistanceX", 3, 1, 3, 2, Q("0.078365 mm")),
    Sketcher.Constraint("DistanceX", 7, 1, 7, 2, Q("0.078045 mm")),
    Sketcher.Constraint("DistanceX", 9, 2, 9, 1, Q("0.285897 mm")),
    Sketcher.Constraint("DistanceX", 18, 1, 18, 2, Q("0.047596 mm")),
    Sketcher.Constraint("DistanceX", 24, 1, 24, 2, Q("0.097436 mm")),
    Sketcher.Constraint("DistanceX", 30, 1, 30, 2, Q("0.072276 mm")),
    Sketcher.Constraint("DistanceX", 33, 1, 33, 2, Q("0.016186 mm")),
    Sketcher.Constraint("DistanceX", 36, 1, 36, 2, Q("0.072115 mm")),
    Sketcher.Constraint("DistanceX", 38, 2, 38, 1, Q("0.010417 mm")),
    Sketcher.Constraint("DistanceX", 41, 2, 41, 1, Q("0.010256 mm")),
    Sketcher.Constraint("DistanceX", 2, 2, -1, 1, Q("1.512821 mm")),
    Sketcher.Constraint("DistanceY", 4, 2, -1, 1, Q("0.14359 mm")),
    Sketcher.Constraint("DistanceX", 8, 2, -1, 1, Q("0.987981 mm")),
    Sketcher.Constraint("DistanceY", 8, 2, -1, 1, Q("0.061538 mm")),
    Sketcher.Constraint("DistanceY", -1, 1, 34, 2, Q("0.175641 mm")),
    Sketcher.Constraint("DistanceX", -1, 1, 39, 2, Q("0.430769 mm")),
    Sketcher.Constraint("DistanceY", 39, 2, -1, 1, Q("0.25641 mm")),
    Sketcher.Constraint("DistanceX", 3, 2, 1, 2, Q("0.301122 mm")),
    Sketcher.Constraint("DistanceX", 31, 2, 34, 2, Q("0.594872 mm")),
    Sketcher.Constraint("Distance", 31, Q("0.581965 mm")),
])
pocket1 = body.newObject("PartDesign::Pocket", "Pocket")
pocket1.Profile = sketch3
pocket1.Length = 0.01

# Sketch on XY plane
sketch4 = body.newObject("Sketcher::SketchObject", "Sketch003")
sketch4.AttachmentSupport = (doc.getObject("XY_Plane"), [""])
sketch4.MapMode = "FlatFace"
sketch4.AttachmentOffset = App.Placement(V(0, 0, 0.5), App.Rotation())
sketch4.addGeometry([
    Part.LineSegment(V(-2.65, 0.4, 0), V(-2.65, -0.4, 0)),
    Part.LineSegment(V(-2.65, -0.4, 0), V(-2.38, -0.4, 0)),
    Part.LineSegment(V(-2.38, -0.4, 0), V(-2.38, 0.4, 0)),
    Part.LineSegment(V(-2.38, 0.4, 0), V(-2.65, 0.4, 0)),
], False)
sketch4.addConstraint([
    Sketcher.Constraint("Coincident", 0, 2, 1, 1),
    Sketcher.Constraint("Coincident", 1, 2, 2, 1),
    Sketcher.Constraint("Coincident", 2, 2, 3, 1),
    Sketcher.Constraint("Coincident", 3, 2, 0, 1),
    Sketcher.Constraint("Vertical", 0),
    Sketcher.Constraint("Horizontal", 1),
    Sketcher.Constraint("Vertical", 2),
    Sketcher.Constraint("Horizontal", 3),
    Sketcher.Constraint("DistanceY", 0, 2, 0, 1, Q("0.8 mm")),
    Sketcher.Constraint("DistanceY", 0, 2, -1, 1, Q("0.4 mm")),
    Sketcher.Constraint("DistanceX", 1, 2, -1, 1, Q("2.38 mm")),
    Sketcher.Constraint("DistanceX", 1, 1, 1, 2, Q("0.269976 mm")),
])
pocket2 = body.newObject("PartDesign::Pocket", "Pocket001")
pocket2.Profile = sketch4
pocket2.Type = "ThroughAll"

# Sketch on XY plane
sketch5 = body.newObject("Sketcher::SketchObject", "Sketch004")
sketch5.AttachmentSupport = (doc.getObject("XY_Plane"), [""])
sketch5.MapMode = "FlatFace"
sketch5.addGeometry([
    Part.LineSegment(V(-1.2, 1, 0), V(-1.2, -1, 0)),
    Part.LineSegment(V(-1.2, -1, 0), V(-2.5, -1, 0)),
    Part.LineSegment(V(-2.5, -1, 0), V(-2.5, 1, 0)),
    Part.LineSegment(V(-2.5, 1, 0), V(-1.2, 1, 0)),
], False)
sketch5.addConstraint([
    Sketcher.Constraint("Coincident", 0, 2, 1, 1),
    Sketcher.Constraint("Coincident", 1, 2, 2, 1),
    Sketcher.Constraint("Coincident", 2, 2, 3, 1),
    Sketcher.Constraint("Coincident", 3, 2, 0, 1),
    Sketcher.Constraint("Vertical", 0),
    Sketcher.Constraint("Horizontal", 1),
    Sketcher.Constraint("Vertical", 2),
    Sketcher.Constraint("Horizontal", 3),
    Sketcher.Constraint("DistanceY", 0, 2, 0, 1, Q("2 mm")),
    Sketcher.Constraint("DistanceX", 1, 2, 1, 1, Q("1.3 mm")),
    Sketcher.Constraint("DistanceY", 0, 2, -1, 1, Q("1 mm")),
    Sketcher.Constraint("DistanceX", 0, 2, -1, 1, Q("1.2 mm")),
])
pocket3 = body.newObject("PartDesign::Pocket", "Pocket002")
pocket3.Profile = sketch5
pocket3.Length = 0.001
pocket3.Reversed = True
doc.recompute()

mirrored = body.newObject("PartDesign::Mirrored", "Mirrored")
mirrored.Originals = [pocket2, pocket3]
mirrored.MirrorPlane = (doc.getObject("YZ_Plane"), [""])
body.Tip = mirrored

doc.recompute()
